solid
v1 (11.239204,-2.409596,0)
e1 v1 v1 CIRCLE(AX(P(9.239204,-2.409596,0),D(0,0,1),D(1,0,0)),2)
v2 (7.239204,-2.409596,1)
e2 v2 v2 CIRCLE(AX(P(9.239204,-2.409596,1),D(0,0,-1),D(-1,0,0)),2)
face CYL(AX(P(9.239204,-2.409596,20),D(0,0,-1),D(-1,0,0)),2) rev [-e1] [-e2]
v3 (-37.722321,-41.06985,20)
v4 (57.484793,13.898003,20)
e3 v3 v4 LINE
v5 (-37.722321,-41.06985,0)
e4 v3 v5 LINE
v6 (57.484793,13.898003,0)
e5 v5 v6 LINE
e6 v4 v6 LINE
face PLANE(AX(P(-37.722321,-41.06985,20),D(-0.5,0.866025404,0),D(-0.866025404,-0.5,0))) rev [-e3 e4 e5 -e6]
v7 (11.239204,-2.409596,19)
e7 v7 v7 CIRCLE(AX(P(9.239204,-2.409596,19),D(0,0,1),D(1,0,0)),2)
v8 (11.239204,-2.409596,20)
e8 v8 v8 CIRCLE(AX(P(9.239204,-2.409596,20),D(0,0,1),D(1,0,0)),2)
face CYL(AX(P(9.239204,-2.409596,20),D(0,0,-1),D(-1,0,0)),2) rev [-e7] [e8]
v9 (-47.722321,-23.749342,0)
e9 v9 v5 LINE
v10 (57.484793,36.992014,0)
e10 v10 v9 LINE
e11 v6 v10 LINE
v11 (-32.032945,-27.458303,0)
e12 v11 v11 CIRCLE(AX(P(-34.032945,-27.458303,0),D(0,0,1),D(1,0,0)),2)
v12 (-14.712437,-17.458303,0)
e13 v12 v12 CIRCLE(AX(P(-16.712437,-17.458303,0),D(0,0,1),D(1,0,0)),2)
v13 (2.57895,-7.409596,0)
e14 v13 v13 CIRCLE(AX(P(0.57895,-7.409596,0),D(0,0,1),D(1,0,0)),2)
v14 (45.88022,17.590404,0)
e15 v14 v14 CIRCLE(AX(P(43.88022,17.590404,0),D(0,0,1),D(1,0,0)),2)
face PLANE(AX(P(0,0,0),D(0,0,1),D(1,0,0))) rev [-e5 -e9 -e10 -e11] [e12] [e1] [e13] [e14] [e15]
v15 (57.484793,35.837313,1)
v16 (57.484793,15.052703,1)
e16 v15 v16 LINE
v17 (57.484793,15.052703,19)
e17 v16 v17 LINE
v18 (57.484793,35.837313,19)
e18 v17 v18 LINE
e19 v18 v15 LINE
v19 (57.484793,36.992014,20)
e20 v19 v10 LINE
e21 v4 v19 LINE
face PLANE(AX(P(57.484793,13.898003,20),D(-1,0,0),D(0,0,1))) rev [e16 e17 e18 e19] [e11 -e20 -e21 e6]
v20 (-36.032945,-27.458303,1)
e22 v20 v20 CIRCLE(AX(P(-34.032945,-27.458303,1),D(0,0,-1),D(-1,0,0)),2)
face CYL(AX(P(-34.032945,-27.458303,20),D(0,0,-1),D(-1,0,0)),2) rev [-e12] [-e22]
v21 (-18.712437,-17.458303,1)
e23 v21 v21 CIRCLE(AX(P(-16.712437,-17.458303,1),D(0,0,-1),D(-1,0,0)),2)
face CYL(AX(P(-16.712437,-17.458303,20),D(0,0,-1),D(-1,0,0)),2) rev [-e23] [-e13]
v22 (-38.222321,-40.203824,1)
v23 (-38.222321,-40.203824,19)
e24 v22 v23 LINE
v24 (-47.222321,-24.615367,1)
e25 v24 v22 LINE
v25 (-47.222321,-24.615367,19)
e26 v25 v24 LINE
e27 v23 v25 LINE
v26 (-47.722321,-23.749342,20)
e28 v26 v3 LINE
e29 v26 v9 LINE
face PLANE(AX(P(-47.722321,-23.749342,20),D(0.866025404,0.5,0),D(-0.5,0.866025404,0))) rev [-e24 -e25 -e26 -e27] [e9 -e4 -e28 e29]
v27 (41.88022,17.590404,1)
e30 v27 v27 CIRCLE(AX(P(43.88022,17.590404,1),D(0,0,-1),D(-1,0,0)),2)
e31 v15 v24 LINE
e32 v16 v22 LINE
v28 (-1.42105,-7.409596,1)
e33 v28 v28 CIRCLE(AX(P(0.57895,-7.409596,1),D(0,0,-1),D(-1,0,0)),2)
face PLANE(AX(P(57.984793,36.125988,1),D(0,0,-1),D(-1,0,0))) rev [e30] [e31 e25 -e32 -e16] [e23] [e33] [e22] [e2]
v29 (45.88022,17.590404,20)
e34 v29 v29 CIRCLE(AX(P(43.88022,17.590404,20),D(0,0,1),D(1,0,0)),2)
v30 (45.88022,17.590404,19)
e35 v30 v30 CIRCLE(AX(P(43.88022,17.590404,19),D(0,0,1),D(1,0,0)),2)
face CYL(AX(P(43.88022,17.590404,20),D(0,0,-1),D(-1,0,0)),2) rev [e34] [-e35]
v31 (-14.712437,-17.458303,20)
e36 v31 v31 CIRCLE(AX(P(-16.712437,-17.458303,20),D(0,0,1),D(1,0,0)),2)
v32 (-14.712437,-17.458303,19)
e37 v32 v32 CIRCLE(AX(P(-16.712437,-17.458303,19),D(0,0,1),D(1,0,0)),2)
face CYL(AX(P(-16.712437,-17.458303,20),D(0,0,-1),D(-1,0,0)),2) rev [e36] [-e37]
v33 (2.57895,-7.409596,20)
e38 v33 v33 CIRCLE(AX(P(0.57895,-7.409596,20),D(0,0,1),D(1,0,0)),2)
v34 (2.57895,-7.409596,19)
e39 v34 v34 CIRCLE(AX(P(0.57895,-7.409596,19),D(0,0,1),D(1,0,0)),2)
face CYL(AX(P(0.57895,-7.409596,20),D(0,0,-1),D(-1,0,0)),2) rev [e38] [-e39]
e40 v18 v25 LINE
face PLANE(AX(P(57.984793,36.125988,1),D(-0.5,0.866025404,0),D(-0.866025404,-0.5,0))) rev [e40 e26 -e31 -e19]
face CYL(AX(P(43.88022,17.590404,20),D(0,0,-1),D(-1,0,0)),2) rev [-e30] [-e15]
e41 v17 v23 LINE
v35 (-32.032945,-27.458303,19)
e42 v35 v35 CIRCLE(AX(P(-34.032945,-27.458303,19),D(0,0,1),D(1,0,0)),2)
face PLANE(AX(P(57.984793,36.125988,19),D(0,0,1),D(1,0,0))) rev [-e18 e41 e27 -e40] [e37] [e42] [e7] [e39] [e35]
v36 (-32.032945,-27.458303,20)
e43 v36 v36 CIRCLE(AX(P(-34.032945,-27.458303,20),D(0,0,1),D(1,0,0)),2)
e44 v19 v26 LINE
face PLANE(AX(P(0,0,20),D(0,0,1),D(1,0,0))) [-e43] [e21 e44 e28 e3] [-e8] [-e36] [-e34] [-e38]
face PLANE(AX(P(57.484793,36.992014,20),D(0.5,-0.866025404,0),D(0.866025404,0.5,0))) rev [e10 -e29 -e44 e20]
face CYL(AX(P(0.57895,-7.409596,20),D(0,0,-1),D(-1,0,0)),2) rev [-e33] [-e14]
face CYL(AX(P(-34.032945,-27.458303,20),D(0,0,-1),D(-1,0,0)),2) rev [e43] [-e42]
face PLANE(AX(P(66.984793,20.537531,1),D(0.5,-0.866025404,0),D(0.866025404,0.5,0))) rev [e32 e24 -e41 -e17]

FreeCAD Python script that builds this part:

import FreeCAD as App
import Part
import Sketcher

V = App.Vector
Q = App.Units.Quantity

doc = App.newDocument("Part")
body = doc.addObject("PartDesign::Body", "Body")

# Sketch on XY plane
sketch1 = body.newObject("Sketcher::SketchObject", "Sketch")
sketch1.AttachmentSupport = (doc.getObject("XY_Plane"), [""])
sketch1.MapMode = "FlatFace"
sketch1.addGeometry(Part.LineSegment(V(-47.722321, -23.749342, 0), V(-37.722321, -41.06985, 0)), False)
sketch1.addGeometry(Part.LineSegment(V(-37.722321, -41.06985, 0), V(57.484793, 13.898003, 0)), False)
sketch1.addGeometry(Part.LineSegment(V(57.484793, 13.898003, 0), V(57.484793, 36.992014, 0)), False)
sketch1.addGeometry(Part.LineSegment(V(57.484793, 36.992014, 0), V(-47.722321, -23.749342, 0)), False)
sketch1.addGeometry(Part.Circle(V(-34.032945, -27.458303, 0), V(0, 0, 1), 2), False)
sketch1.addGeometry(Part.Circle(V(-16.712437, -17.458303, 0), V(0, 0, 1), 2), False)
sketch1.addGeometry(Part.Circle(V(0.57895, -7.409596, 0), V(0, 0, 1), 2), False)
sketch1.addGeometry(Part.Circle(V(9.239204, -2.409596, 0), V(0, 0, 1), 2), False)
sketch1.addGeometry(Part.Circle(V(43.88022, 17.590404, 0), V(0, 0, 1), 2), False)
sketch1.addConstraint(Sketcher.Constraint("Coincident", 0, 2, 1, 1))
sketch1.addConstraint(Sketcher.Constraint("Coincident", 1, 2, 2, 1))
sketch1.addConstraint(Sketcher.Constraint("Coincident", 2, 2, 3, 1))
sketch1.addConstraint(Sketcher.Constraint("Coincident", 3, 2, 0, 1))
sketch1.addConstraint(Sketcher.Constraint("Vertical", 2))
sketch1.addConstraint(Sketcher.Constraint("Equal", 4, 5))
sketch1.addConstraint(Sketcher.Constraint("Equal", 5, 6))
sketch1.addConstraint(Sketcher.Constraint("Equal", 6, 7))
sketch1.addConstraint(Sketcher.Constraint("Equal", 7, 8))
sketch1.addConstraint(Sketcher.Constraint("Perpendicular", 0, 1))
sketch1.addConstraint(Sketcher.Constraint("Parallel", 1, 3))
sketch1.addConstraint(Sketcher.Constraint("Diameter", 4, 4.0))
sketch1.addConstraint(Sketcher.Constraint("Angle", 0, Q("-60 deg")))
sketch1.addConstraint(Sketcher.Constraint("Distance", 0, 20.0))
sketch1.addConstraint(Sketcher.Constraint("DistanceY", 4, 3, 5, 3, 10.0))
sketch1.addConstraint(Sketcher.Constraint("DistanceY", 6, 3, 7, 3, 5.0))
sketch1.addConstraint(Sketcher.Constraint("DistanceY", 7, 3, 8, 3, 20.0))
sketch1.addConstraint(Sketcher.Constraint("DistanceY", 1, 2, 8, 3, 3.692402))
sketch1.addConstraint(Sketcher.Constraint("Distance", 3, 121.48271))
sketch1.addConstraint(Sketcher.Constraint("DistanceX", -1, 1, 6, 3, 0.57895))
sketch1.addConstraint(Sketcher.Constraint("DistanceX", -1, 1, 8, 3, 43.88022))
sketch1.addConstraint(Sketcher.Constraint("DistanceX", 0, 2, -1, 1, 37.722321))
sketch1.addConstraint(Sketcher.Constraint("DistanceY", 0, 2, -1, 1, 41.06985))
sketch1.addConstraint(Sketcher.Constraint("DistanceX", 4, 3, 5, 3, 17.320508))
sketch1.addConstraint(Sketcher.Constraint("DistanceX", 5, 3, 7, 3, 25.951641))
sketch1.addConstraint(Sketcher.Constraint("DistanceX", 7, 3, 1, 2, 48.245589))
sketch1.addConstraint(Sketcher.Constraint("DistanceY", 4, 3, 3, 2, 3.708962))
pad1 = body.newObject("PartDesign::Pad", "Pad")
pad1.Profile = sketch1
pad1.Length = 20

# Sketch on an angled plane
sketch2 = body.newObject("Sketcher::SketchObject", "Sketch001")
sketch2.Placement = App.Placement(V(-46.075507, -26.601706, 0), App.Rotation(V(0, 0, 1), V(-0.5, 0.866025404, 0), V(-0.866025404, -0.5, 0), "ZXY"))
sketch2.addGeometry(Part.LineSegment(V(1, 2.293627, 0), V(1, -15.706373, 0)), False)
sketch2.addGeometry(Part.LineSegment(V(1, -15.706373, 0), V(19, -15.706373, 0)), False)
sketch2.addGeometry(Part.LineSegment(V(19, -15.706373, 0), V(19, 2.293627, 0)), False)
sketch2.addGeometry(Part.LineSegment(V(19, 2.293627, 0), V(1, 2.293627, 0)), False)
sketch2.addConstraint(Sketcher.Constraint("Coincident", 0, 2, 1, 1))
sketch2.addConstraint(Sketcher.Constraint("Coincident", 1, 2, 2, 1))
sketch2.addConstraint(Sketcher.Constraint("Coincident", 2, 2, 3, 1))
sketch2.addConstraint(Sketcher.Constraint("Coincident", 3, 2, 0, 1))
sketch2.addConstraint(Sketcher.Constraint("Vertical", 0))
sketch2.addConstraint(Sketcher.Constraint("Horizontal", 1))
sketch2.addConstraint(Sketcher.Constraint("Vertical", 2))
sketch2.addConstraint(Sketcher.Constraint("Horizontal", 3))
sketch2.addConstraint(Sketcher.Constraint("Equal", 3, 0))
sketch2.addConstraint(Sketcher.Constraint("DistanceX", 1, 1, 1, 2, 18.0))
sketch2.addConstraint(Sketcher.Constraint("DistanceX", -1, 1, 0, 2, 1.0))
sketch2.addConstraint(Sketcher.Constraint("DistanceY", 0, 2, -1, 1, 15.706373))
pocket1 = body.newObject("PartDesign::Pocket", "Pocket")
pocket1.Profile = sketch2
pocket1.Type = "ThroughAll"

doc.recompute()
